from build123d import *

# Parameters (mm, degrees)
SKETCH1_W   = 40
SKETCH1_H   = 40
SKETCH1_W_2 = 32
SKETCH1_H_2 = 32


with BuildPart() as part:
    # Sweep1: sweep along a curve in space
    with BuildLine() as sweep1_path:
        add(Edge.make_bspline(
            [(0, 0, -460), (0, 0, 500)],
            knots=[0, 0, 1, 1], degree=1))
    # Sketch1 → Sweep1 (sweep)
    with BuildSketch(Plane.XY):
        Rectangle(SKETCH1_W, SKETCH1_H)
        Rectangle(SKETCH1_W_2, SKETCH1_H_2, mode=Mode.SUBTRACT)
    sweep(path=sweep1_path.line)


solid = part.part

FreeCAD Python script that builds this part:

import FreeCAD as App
import Part
import Sketcher
Q = App.Units.Quantity

doc = App.newDocument("Part")
params = doc.addObject("Spreadsheet::Sheet", "Params")
for row, (alias, value) in enumerate([
    ("sketch1_width", "40 mm"),
    ("sketch1_width2", "32 mm"),
], start=1):
    params.set(f"A{row}", alias)
    params.set(f"B{row}", "=" + value)
    params.setAlias(f"B{row}", alias)

body = doc.addObject("PartDesign::Body", "Body")

# Sketch on XY plane
sketch1 = body.newObject("Sketcher::SketchObject", "Sketch")
sketch1.AttachmentSupport = (doc.getObject("XY_Plane"), [""])
sketch1.MapMode = "FlatFace"
sketch1.addGeometry(Part.LineSegment(App.Vector(-20, 20, 0), App.Vector(-20, -20, 0)), False)
sketch1.addGeometry(Part.LineSegment(App.Vector(-20, -20, 0), App.Vector(20, -20, 0)), False)
sketch1.addGeometry(Part.LineSegment(App.Vector(20, -20, 0), App.Vector(20, 20, 0)), False)
sketch1.addGeometry(Part.LineSegment(App.Vector(20, 20, 0), App.Vector(-20, 20, 0)), False)
sketch1.addGeometry(Part.LineSegment(App.Vector(16, -16, 0), App.Vector(-16, -16, 0)), False)
sketch1.addGeometry(Part.LineSegment(App.Vector(-16, -16, 0), App.Vector(-16, 16, 0)), False)
sketch1.addGeometry(Part.LineSegment(App.Vector(-16, 16, 0), App.Vector(16, 16, 0)), False)
sketch1.addGeometry(Part.LineSegment(App.Vector(16, 16, 0), App.Vector(16, -16, 0)), False)
sketch1.addConstraint(Sketcher.Constraint("Coincident", 0, 2, 1, 1))
sketch1.addConstraint(Sketcher.Constraint("Coincident", 1, 2, 2, 1))
sketch1.addConstraint(Sketcher.Constraint("Coincident", 2, 2, 3, 1))
sketch1.addConstraint(Sketcher.Constraint("Coincident", 3, 2, 0, 1))
sketch1.addConstraint(Sketcher.Constraint("Coincident", 4, 2, 5, 1))
sketch1.addConstraint(Sketcher.Constraint("Coincident", 5, 2, 6, 1))
sketch1.addConstraint(Sketcher.Constraint("Coincident", 6, 2, 7, 1))
sketch1.addConstraint(Sketcher.Constraint("Coincident", 7, 2, 4, 1))
sketch1.addConstraint(Sketcher.Constraint("Vertical", 0))
sketch1.addConstraint(Sketcher.Constraint("Horizontal", 1))
sketch1.addConstraint(Sketcher.Constraint("Vertical", 2))
sketch1.addConstraint(Sketcher.Constraint("Horizontal", 3))
sketch1.addConstraint(Sketcher.Constraint("Horizontal", 4))
sketch1.addConstraint(Sketcher.Constraint("Vertical", 5))
sketch1.addConstraint(Sketcher.Constraint("Horizontal", 6))
sketch1.addConstraint(Sketcher.Constraint("Vertical", 7))
sketch1.addConstraint(Sketcher.Constraint("Symmetric", 0, 2, 2, 2, -1, 1))
sketch1.addConstraint(Sketcher.Constraint("Symmetric", 4, 2, 6, 2, -1, 1))
sketch1.addConstraint(Sketcher.Constraint("Equal", 3, 0))
sketch1.addConstraint(Sketcher.Constraint("Equal", 6, 5))
sketch1.addConstraint(Sketcher.Constraint("DistanceX", 1, 1, 1, 2, Q("40 mm")))
sketch1.addConstraint(Sketcher.Constraint("DistanceX", 4, 2, 4, 1, Q("32 mm")))
sketch1.setExpression("Constraints[20]", "Params.sketch1_width")
sketch1.setExpression("Constraints[21]", "Params.sketch1_width2")

# Sketch on XZ plane
sketch2 = body.newObject("Sketcher::SketchObject", "Sketch001")
sketch2.AttachmentSupport = (doc.getObject("XZ_Plane"), [""])
sketch2.MapMode = "FlatFace"
sketch2.addGeometry(Part.BSplineCurve([App.Vector(0, -460, 0), App.Vector(0, 500, 0)], [2, 2], [0, 1], False, 1, [1, 1], False), False)
sketch2.addConstraint(Sketcher.Constraint("Block", 0))
doc.recompute()

additivepipe = body.newObject("PartDesign::AdditivePipe", "AdditivePipe")
additivepipe.Profile = sketch1
additivepipe.Spine = (sketch2, ["Edge1"])

doc.recompute()
